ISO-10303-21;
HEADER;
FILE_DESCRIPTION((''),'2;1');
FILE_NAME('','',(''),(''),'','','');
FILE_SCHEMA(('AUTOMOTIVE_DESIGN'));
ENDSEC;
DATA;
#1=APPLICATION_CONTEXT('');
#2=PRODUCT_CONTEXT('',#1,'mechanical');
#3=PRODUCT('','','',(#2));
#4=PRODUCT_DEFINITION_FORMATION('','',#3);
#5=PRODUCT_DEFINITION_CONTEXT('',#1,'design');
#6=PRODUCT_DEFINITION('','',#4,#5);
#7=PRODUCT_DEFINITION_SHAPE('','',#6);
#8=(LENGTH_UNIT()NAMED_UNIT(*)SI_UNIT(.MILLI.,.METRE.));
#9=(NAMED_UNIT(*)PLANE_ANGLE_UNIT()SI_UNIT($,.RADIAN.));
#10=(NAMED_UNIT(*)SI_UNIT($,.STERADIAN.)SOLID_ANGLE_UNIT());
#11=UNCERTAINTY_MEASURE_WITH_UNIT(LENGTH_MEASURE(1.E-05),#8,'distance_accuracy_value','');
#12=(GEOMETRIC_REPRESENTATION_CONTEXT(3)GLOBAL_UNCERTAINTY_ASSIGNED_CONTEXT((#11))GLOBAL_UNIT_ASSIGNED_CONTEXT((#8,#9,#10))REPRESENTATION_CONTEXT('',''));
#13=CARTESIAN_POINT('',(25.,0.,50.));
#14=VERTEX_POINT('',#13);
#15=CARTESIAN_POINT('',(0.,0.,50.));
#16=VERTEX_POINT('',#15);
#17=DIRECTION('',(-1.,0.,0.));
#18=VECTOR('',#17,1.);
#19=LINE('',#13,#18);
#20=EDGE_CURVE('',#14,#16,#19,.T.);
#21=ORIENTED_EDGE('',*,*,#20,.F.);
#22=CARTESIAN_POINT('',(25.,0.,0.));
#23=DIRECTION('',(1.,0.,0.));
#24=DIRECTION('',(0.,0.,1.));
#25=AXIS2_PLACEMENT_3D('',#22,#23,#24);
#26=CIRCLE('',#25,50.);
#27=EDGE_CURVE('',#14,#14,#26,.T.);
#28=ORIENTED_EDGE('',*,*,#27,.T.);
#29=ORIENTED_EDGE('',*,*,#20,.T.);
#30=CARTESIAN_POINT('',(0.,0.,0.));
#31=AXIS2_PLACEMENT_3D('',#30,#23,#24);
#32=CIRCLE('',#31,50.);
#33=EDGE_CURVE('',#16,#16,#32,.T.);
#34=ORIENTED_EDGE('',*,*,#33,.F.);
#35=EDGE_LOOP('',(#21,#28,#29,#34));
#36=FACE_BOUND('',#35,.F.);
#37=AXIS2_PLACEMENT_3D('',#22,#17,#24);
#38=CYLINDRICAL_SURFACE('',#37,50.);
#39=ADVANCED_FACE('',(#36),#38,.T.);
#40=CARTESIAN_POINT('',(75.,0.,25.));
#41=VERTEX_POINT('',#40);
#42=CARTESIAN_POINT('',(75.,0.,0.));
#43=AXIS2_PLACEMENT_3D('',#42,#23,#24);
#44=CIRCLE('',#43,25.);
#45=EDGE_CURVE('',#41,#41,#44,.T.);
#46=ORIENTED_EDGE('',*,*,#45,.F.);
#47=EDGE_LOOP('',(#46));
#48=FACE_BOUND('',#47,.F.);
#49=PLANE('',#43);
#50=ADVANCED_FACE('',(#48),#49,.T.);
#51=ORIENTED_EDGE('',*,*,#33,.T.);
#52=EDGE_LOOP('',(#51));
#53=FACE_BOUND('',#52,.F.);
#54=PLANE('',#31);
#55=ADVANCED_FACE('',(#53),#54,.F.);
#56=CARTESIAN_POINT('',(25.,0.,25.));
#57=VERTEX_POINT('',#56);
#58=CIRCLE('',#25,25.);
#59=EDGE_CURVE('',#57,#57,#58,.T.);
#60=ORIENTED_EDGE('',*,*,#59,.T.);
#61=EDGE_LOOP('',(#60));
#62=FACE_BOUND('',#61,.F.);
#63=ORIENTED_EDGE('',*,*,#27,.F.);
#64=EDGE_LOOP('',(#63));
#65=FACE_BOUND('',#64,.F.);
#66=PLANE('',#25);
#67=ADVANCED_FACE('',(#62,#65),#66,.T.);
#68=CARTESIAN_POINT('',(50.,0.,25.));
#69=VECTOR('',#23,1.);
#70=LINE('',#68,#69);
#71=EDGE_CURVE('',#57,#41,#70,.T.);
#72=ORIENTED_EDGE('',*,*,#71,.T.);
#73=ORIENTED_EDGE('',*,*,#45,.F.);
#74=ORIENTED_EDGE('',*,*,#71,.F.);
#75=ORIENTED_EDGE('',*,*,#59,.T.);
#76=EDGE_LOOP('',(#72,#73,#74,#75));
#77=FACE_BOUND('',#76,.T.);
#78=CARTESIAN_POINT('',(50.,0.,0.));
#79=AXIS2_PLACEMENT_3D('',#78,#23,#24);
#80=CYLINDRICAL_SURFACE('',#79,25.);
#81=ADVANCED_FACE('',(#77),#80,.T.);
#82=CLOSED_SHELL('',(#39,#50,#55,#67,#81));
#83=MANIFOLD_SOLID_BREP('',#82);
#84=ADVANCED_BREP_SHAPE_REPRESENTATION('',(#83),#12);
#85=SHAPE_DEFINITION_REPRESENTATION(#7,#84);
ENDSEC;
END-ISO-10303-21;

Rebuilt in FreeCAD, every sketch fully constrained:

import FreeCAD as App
import Part
import Sketcher

V = App.Vector

doc = App.newDocument("Part")
body = doc.addObject("PartDesign::Body", "Body")

sketch1 = body.newObject("Sketcher::SketchObject", "Sketch")
sketch1.AttachmentSupport = (doc.getObject("XZ_Plane"), [""])
sketch1.MapMode = "FlatFace"
sketch1.addGeometry([
    Part.LineSegment(V(0, 50, 0), V(0, 0, 0)),
    Part.LineSegment(V(0, 0, 0), V(75, 0, 0)),
    Part.LineSegment(V(75, 0, 0), V(75, 25, 0)),
    Part.LineSegment(V(75, 25, 0), V(25, 25, 0)),
    Part.LineSegment(V(25, 25, 0), V(25, 50, 0)),
    Part.LineSegment(V(25, 50, 0), V(0, 50, 0)),
], False)
sketch1.addConstraint([
    Sketcher.Constraint("Coincident", 0, 2, 1, 1),
    Sketcher.Constraint("Coincident", 1, 2, 2, 1),
    Sketcher.Constraint("Coincident", 2, 2, 3, 1),
    Sketcher.Constraint("Coincident", 3, 2, 4, 1),
    Sketcher.Constraint("Coincident", 4, 2, 5, 1),
    Sketcher.Constraint("Coincident", 5, 2, 0, 1),
    Sketcher.Constraint("Vertical", 0),
    Sketcher.Constraint("Horizontal", 1),
    Sketcher.Constraint("Vertical", 2),
    Sketcher.Constraint("Horizontal", 3),
    Sketcher.Constraint("Vertical", 4),
    Sketcher.Constraint("Horizontal", 5),
    Sketcher.Constraint("Coincident", 0, 2, -1, 1),
    Sketcher.Constraint("Equal", 3, 0),
    Sketcher.Constraint("Equal", 5, 2),
    Sketcher.Constraint("Equal", 2, 4),
    Sketcher.Constraint("DistanceX", 1, 1, 1, 2, 75.0),
])
revolution = body.newObject("PartDesign::Revolution", "Revolution")
revolution.Profile = sketch1
revolution.ReferenceAxis = (sketch1, ["H_Axis"])
revolution.Angle = 360

doc.recompute()
